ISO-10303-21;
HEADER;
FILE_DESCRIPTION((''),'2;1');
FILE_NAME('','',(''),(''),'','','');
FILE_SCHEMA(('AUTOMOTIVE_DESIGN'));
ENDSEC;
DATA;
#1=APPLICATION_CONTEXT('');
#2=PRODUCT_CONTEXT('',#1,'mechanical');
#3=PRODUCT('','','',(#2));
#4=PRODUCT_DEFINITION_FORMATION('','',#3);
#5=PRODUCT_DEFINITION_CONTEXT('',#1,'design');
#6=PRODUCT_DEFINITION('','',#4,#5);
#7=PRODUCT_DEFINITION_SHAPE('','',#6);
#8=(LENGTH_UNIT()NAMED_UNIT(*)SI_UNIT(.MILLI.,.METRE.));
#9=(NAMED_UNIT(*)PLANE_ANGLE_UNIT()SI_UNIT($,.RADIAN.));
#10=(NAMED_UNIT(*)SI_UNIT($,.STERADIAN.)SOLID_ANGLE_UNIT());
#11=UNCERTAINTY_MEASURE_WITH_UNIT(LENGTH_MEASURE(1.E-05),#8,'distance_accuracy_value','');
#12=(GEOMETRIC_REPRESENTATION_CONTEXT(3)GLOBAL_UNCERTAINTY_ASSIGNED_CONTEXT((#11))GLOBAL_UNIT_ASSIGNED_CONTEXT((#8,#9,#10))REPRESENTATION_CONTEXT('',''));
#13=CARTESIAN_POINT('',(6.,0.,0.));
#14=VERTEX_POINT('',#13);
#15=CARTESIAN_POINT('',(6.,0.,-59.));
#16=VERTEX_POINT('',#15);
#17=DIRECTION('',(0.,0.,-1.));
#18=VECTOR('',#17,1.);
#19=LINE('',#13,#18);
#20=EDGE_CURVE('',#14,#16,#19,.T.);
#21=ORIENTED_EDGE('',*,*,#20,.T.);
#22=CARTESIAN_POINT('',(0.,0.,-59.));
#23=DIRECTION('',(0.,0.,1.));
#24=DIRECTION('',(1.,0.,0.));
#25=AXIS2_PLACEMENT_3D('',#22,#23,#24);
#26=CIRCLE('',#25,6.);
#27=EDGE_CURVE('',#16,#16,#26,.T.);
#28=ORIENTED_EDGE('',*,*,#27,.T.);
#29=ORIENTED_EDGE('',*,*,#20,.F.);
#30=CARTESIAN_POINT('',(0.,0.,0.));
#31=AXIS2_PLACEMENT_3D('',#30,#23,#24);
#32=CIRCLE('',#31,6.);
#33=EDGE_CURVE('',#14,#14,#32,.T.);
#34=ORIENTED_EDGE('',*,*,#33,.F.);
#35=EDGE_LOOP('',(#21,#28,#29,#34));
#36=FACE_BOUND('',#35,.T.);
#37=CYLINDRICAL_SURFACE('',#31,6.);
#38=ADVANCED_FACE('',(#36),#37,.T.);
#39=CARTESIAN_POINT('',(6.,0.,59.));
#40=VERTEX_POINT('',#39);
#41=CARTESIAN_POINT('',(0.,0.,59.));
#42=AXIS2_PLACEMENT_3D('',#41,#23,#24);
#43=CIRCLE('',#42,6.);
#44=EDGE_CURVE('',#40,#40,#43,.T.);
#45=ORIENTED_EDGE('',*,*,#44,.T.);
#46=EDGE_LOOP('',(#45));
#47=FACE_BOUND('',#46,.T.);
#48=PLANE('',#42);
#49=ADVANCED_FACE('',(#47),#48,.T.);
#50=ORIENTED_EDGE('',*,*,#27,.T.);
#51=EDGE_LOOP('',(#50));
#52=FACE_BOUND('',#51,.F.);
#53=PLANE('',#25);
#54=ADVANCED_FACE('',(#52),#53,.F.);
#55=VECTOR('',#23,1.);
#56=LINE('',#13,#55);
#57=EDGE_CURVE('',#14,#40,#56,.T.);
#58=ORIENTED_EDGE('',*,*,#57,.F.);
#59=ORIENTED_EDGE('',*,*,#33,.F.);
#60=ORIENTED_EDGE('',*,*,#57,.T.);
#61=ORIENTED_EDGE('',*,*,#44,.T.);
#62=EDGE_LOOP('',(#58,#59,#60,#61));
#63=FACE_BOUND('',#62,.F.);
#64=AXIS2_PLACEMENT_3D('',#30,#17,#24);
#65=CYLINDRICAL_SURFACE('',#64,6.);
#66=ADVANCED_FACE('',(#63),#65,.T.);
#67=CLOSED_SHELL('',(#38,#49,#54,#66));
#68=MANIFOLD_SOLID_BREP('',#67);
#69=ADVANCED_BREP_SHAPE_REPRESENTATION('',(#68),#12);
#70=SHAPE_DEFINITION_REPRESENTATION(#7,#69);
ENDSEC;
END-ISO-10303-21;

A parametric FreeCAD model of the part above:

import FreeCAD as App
import Part
import Sketcher
from FreeCAD import Vector
Q = App.Units.Quantity

doc = App.newDocument("Part")
body = doc.addObject("PartDesign::Body", "Body")

sketch1 = body.newObject("Sketcher::SketchObject", "Sketch")
sketch1.AttachmentSupport = (doc.getObject("XY_Plane"), [""])
sketch1.MapMode = "FlatFace"
sketch1.addGeometry(Part.Circle(Vector(0, 0, 0), Vector(0, 0, 1), 6), False)
sketch1.addConstraint([
    Sketcher.Constraint("Coincident", 0, 3, -1, 1),
    Sketcher.Constraint("Diameter", 0, Q("12 mm")),
])
pad1 = body.newObject("PartDesign::Pad", "Pad")
pad1.Profile = sketch1
pad1.Length = 118
pad1.Midplane = True

doc.recompute()
